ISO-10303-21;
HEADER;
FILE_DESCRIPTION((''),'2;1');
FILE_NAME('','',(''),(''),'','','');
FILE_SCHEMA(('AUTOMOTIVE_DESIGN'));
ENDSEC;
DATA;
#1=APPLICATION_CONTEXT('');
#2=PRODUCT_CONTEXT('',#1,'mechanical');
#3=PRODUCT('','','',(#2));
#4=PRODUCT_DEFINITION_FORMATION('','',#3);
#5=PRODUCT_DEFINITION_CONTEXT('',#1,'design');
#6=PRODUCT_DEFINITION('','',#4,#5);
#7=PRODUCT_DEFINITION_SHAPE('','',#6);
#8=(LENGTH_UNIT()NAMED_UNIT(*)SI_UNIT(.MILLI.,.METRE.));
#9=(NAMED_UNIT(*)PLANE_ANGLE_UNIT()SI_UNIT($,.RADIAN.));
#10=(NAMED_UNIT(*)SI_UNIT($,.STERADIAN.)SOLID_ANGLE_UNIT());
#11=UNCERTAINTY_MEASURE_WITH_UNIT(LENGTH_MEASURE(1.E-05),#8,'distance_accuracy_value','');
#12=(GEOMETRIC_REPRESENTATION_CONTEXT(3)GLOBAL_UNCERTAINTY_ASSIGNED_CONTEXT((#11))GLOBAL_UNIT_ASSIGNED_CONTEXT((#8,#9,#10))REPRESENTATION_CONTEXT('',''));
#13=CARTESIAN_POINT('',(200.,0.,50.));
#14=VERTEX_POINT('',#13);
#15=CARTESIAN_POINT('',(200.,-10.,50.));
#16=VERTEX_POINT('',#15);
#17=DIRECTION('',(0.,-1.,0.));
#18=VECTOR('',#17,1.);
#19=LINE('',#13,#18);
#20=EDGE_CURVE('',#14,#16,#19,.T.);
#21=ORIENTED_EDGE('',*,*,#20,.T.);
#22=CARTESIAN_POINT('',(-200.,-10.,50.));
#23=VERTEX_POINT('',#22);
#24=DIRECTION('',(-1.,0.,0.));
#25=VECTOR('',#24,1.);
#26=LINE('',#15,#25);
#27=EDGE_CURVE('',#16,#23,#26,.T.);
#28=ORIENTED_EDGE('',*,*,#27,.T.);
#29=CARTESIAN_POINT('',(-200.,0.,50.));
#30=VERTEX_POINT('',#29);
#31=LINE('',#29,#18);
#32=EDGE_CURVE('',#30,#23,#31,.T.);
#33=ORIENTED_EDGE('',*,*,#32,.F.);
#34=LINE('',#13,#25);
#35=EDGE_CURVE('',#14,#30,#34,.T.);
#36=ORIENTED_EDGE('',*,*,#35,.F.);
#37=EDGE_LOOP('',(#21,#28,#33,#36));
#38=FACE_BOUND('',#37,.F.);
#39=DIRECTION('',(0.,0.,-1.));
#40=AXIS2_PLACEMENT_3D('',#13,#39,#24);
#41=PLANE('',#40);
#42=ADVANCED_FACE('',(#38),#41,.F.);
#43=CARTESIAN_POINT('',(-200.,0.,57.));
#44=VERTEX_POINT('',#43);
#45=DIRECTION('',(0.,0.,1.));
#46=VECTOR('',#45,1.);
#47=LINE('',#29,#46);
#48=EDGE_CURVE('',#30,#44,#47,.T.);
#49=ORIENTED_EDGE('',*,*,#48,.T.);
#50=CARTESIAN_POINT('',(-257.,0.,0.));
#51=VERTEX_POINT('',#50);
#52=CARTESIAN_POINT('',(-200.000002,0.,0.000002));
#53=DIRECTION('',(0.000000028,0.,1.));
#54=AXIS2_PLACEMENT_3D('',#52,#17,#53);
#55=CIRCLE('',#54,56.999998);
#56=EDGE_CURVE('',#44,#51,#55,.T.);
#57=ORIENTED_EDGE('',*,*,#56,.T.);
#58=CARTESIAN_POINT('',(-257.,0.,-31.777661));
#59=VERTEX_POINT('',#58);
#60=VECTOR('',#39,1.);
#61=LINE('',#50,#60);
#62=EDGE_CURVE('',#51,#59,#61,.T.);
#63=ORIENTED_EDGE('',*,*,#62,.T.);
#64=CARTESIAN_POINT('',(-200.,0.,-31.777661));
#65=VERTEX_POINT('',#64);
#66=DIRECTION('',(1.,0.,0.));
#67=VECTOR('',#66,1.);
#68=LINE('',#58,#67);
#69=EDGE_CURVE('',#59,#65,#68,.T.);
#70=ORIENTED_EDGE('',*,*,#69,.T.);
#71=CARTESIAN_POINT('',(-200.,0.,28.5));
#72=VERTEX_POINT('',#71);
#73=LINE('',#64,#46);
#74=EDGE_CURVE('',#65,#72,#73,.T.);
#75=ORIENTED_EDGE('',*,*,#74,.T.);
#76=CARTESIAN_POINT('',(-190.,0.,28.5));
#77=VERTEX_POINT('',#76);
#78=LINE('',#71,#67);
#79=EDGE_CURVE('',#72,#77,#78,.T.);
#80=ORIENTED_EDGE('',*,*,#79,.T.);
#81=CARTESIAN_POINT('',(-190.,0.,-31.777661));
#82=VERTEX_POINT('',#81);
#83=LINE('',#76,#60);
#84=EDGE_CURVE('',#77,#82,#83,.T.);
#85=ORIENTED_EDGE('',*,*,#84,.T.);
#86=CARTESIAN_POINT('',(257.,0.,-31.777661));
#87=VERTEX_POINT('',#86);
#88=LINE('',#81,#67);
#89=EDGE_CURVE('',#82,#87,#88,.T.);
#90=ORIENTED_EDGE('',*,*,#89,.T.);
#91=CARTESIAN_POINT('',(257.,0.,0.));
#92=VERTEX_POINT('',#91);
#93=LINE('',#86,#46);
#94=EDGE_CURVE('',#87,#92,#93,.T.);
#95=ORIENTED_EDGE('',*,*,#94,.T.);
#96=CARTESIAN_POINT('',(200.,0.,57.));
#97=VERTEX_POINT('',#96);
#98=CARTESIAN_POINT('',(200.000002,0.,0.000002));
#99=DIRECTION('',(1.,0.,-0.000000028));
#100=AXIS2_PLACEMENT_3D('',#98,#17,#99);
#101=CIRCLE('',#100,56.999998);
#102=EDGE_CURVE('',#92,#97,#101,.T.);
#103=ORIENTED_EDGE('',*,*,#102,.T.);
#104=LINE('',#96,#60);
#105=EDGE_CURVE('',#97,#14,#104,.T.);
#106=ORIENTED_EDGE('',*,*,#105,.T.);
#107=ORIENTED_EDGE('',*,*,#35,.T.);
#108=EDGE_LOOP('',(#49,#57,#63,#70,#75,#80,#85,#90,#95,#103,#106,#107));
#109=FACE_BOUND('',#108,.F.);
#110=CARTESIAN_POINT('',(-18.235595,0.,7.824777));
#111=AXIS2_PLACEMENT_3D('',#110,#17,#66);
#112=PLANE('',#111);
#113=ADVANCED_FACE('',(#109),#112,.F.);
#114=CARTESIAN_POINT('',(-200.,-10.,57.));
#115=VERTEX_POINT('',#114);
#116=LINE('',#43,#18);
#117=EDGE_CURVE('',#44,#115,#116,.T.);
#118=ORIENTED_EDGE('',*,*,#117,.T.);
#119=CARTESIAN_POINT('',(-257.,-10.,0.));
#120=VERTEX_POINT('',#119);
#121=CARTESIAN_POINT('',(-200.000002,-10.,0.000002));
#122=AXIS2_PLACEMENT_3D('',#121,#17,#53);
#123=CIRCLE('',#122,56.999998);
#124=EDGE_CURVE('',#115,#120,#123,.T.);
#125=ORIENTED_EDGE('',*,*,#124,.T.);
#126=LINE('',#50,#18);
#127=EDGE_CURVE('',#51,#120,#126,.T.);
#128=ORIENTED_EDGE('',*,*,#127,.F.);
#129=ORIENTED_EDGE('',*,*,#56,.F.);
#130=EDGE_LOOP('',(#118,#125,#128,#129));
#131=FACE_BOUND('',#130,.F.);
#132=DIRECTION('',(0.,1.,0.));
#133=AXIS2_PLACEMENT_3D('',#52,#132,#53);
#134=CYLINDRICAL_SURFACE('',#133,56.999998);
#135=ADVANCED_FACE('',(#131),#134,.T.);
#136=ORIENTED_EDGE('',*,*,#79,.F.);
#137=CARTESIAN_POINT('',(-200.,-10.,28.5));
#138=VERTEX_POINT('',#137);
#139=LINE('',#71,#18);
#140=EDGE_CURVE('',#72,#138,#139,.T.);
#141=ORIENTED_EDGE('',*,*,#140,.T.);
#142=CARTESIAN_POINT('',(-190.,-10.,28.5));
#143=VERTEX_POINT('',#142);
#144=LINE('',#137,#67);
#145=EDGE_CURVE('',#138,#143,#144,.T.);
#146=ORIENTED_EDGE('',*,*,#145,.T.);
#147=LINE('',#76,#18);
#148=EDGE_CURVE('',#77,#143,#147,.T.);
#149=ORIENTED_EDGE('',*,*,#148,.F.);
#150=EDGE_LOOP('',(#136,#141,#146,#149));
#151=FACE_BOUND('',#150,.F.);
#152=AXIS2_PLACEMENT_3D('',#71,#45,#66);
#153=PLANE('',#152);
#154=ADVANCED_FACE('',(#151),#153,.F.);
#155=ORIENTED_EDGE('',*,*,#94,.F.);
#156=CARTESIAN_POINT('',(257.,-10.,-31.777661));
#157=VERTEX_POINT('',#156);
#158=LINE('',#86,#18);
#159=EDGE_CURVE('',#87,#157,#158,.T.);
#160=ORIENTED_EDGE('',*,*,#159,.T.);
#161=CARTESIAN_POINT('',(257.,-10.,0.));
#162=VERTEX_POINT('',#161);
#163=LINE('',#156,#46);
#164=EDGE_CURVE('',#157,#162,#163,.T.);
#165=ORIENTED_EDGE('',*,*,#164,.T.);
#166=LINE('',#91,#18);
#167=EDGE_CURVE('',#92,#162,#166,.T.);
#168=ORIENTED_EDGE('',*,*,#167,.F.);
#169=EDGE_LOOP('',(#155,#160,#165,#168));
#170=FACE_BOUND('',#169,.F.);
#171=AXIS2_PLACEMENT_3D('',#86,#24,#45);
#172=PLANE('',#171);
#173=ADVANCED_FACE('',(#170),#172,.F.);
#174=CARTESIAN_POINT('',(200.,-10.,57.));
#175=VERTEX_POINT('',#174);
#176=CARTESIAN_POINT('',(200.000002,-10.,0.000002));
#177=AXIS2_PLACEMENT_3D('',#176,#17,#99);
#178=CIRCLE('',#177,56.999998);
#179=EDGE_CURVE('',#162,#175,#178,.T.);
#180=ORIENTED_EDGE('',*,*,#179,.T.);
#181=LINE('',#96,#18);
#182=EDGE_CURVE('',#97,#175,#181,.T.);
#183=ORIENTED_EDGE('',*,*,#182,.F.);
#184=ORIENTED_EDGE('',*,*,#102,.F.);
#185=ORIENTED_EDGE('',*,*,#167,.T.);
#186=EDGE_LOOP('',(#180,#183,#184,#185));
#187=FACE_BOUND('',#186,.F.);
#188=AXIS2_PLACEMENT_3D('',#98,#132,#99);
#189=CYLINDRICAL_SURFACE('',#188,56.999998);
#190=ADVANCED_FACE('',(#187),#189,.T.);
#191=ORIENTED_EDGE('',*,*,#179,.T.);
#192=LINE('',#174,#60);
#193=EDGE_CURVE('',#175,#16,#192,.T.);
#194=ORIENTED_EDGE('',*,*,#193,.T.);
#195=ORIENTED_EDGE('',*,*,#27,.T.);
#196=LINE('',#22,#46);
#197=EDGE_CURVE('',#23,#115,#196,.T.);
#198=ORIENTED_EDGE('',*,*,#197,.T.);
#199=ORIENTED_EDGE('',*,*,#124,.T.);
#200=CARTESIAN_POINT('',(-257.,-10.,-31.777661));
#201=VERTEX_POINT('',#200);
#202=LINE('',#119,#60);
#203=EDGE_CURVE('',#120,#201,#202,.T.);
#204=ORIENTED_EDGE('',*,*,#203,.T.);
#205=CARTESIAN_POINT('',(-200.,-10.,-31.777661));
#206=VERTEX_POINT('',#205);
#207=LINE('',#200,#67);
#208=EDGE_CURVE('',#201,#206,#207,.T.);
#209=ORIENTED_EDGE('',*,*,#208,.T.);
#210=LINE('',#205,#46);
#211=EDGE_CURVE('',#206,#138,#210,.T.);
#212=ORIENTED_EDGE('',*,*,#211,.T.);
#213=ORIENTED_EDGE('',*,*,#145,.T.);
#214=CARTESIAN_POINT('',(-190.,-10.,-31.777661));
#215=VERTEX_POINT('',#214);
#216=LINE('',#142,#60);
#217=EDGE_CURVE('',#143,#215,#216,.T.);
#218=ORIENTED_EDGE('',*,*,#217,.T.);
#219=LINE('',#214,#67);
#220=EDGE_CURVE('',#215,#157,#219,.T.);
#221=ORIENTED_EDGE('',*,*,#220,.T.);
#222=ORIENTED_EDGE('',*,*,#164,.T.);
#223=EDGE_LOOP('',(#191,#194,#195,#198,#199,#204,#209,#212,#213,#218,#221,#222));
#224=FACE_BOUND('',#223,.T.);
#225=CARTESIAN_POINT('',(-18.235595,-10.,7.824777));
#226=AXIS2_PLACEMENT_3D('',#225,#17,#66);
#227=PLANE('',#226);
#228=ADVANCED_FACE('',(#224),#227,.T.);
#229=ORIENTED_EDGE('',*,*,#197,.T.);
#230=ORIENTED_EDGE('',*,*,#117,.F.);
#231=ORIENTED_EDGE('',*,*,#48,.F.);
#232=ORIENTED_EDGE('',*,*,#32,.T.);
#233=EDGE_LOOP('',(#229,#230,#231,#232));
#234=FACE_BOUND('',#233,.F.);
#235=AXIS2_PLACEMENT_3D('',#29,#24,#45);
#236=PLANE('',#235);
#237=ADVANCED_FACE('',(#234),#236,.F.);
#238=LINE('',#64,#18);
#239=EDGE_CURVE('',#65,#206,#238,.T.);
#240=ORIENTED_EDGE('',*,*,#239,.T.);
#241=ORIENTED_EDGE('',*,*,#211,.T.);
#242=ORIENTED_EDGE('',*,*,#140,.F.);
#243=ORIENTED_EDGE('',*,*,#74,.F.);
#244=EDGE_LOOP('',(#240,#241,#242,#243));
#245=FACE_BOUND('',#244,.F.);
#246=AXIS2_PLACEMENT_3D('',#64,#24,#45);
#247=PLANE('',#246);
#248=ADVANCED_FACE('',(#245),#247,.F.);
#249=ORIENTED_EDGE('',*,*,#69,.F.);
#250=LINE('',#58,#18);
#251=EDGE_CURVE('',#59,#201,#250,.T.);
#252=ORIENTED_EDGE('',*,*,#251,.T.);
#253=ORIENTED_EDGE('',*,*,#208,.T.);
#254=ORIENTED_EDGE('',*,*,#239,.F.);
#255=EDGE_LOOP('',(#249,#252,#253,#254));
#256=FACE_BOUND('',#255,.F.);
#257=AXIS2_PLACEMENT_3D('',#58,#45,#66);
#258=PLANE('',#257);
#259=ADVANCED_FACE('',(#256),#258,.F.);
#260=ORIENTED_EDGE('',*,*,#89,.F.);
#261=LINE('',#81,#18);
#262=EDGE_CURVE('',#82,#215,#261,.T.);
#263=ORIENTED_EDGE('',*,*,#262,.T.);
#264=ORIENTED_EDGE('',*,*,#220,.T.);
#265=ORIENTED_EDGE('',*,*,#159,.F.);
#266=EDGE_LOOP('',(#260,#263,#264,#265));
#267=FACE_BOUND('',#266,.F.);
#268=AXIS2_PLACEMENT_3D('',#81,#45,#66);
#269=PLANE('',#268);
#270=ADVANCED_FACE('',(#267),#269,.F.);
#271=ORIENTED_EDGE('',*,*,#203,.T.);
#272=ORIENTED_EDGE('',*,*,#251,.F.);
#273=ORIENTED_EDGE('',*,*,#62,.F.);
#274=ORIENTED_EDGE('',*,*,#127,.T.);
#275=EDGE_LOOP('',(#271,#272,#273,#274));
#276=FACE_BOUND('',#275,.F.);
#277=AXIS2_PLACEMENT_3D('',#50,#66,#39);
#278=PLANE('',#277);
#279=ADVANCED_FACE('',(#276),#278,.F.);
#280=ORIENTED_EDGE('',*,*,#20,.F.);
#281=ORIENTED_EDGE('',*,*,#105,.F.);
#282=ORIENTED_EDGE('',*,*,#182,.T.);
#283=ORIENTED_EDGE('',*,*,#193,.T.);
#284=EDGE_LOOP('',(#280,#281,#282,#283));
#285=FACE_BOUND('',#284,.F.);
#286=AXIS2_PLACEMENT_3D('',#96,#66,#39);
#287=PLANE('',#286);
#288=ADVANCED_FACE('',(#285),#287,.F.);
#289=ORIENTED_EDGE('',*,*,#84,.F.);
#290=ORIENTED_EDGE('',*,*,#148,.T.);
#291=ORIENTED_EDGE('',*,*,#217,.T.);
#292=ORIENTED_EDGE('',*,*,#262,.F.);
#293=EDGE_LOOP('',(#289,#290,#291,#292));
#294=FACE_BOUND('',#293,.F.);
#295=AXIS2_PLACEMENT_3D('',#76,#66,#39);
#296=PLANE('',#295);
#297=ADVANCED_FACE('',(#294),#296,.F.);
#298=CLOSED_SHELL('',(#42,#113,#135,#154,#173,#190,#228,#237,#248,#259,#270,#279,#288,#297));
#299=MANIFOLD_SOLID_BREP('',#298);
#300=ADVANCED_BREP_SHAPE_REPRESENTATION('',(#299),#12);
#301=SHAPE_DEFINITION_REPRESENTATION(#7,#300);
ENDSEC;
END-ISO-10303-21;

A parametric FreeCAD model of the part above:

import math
import FreeCAD as App
import Part
import Sketcher

V = App.Vector
Q = App.Units.Quantity

doc = App.newDocument("Part")
body = doc.addObject("PartDesign::Body", "Body")

# Sketch on XZ plane
sketch1 = body.newObject("Sketcher::SketchObject", "Sketch")
sketch1.AttachmentSupport = (doc.getObject("XZ_Plane"), [""])
sketch1.MapMode = "FlatFace"
sketch1.addGeometry([
    Part.LineSegment(V(-200, 50, 0), V(-200, 57, 0)),  # 0
    Part.ArcOfCircle(Part.Circle(V(-200, 0, 0), V(0, 0, 1), 57), math.radians(90), math.radians(180)),  # 1
    Part.LineSegment(V(-257, 0, 0), V(-257, -32, 0)),  # 2
    Part.LineSegment(V(-257, -32, 0), V(-200, -32, 0)),  # 3
    Part.LineSegment(V(-200, -32, 0), V(-200, 28, 0)),  # 4
    Part.LineSegment(V(-200, 28, 0), V(-190, 28, 0)),  # 5
    Part.LineSegment(V(-190, 28, 0), V(-190, -32, 0)),  # 6
    Part.LineSegment(V(-190, -32, 0), V(257, -32, 0)),  # 7
    Part.LineSegment(V(257, -32, 0), V(257, 0, 0)),  # 8
    Part.ArcOfCircle(Part.Circle(V(200, 0, 0), V(0, 0, 1), 57), math.radians(0), math.radians(90)),  # 9
    Part.LineSegment(V(200, 57, 0), V(200, 50, 0)),  # 10
    Part.LineSegment(V(200, 50, 0), V(-200, 50, 0)),  # 11
], False)
sketch1.addConstraint([
    Sketcher.Constraint("Coincident", 0, 2, 1, 1),
    Sketcher.Constraint("Tangent", 1, 2, 2, 1),
    Sketcher.Constraint("Coincident", 2, 2, 3, 1),
    Sketcher.Constraint("Coincident", 3, 2, 4, 1),
    Sketcher.Constraint("Coincident", 4, 2, 5, 1),
    Sketcher.Constraint("Coincident", 5, 2, 6, 1),
    Sketcher.Constraint("Coincident", 6, 2, 7, 1),
    Sketcher.Constraint("Coincident", 7, 2, 8, 1),
    Sketcher.Constraint("Tangent", 8, 2, 9, 1),
    Sketcher.Constraint("Coincident", 9, 2, 10, 1),
    Sketcher.Constraint("Coincident", 10, 2, 11, 1),
    Sketcher.Constraint("Coincident", 11, 2, 0, 1),
    Sketcher.Constraint("Vertical", 0),
    Sketcher.Constraint("Vertical", 2),
    Sketcher.Constraint("Horizontal", 3),
    Sketcher.Constraint("Vertical", 4),
    Sketcher.Constraint("Horizontal", 5),
    Sketcher.Constraint("Vertical", 6),
    Sketcher.Constraint("Horizontal", 7),
    Sketcher.Constraint("Vertical", 8),
    Sketcher.Constraint("Vertical", 10),
    Sketcher.Constraint("Horizontal", 11),
    Sketcher.Constraint("Equal", 1, 9),
    Sketcher.Constraint("Symmetric", 1, 3, 9, 3, -1, 1),
    Sketcher.Constraint("Symmetric", 0, 2, 9, 2, -2),
    Sketcher.Constraint("Horizontal", 3, 2, 6, 2),
    Sketcher.Constraint("Vertical", 1, 3, 0, 2),
    Sketcher.Constraint("Vertical", 0, 2, 3, 2),
    Sketcher.Constraint("Radius", 1, Q("56.999998 mm")),
    Sketcher.Constraint("DistanceX", 5, 1, 5, 2, Q("10 mm")),
    Sketcher.Constraint("DistanceX", 7, 1, 7, 2, Q("447 mm")),
    Sketcher.Constraint("DistanceY", 0, 1, 0, 2, Q("7 mm")),
    Sketcher.Constraint("DistanceY", -1, 1, 4, 2, Q("28.5 mm")),
    Sketcher.Constraint("DistanceY", 2, 2, 2, 1, Q("31.777661 mm")),
])
pad1 = body.newObject("PartDesign::Pad", "Pad")
pad1.Profile = sketch1
pad1.Length = 10

doc.recompute()
